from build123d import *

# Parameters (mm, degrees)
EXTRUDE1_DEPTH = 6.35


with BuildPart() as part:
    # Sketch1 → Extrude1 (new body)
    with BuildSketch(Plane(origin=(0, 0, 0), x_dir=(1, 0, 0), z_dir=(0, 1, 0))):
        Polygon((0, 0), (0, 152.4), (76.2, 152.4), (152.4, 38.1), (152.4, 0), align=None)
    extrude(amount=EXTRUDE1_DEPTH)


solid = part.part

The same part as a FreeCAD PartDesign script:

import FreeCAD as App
import Part
import Sketcher

V = App.Vector
Q = App.Units.Quantity

doc = App.newDocument("Part")
params = doc.addObject("Spreadsheet::Sheet", "Params")
for row, (alias, value) in enumerate([
    ("sketch1_width", "6 in"),
    ("sketch1_width2", "3 in"),
    ("sketch1_height", "1.5 in"),
    ("pad1_length", "0.25 in"),
], start=1):
    params.set(f"A{row}", alias)
    params.set(f"B{row}", "=" + value)
    params.setAlias(f"B{row}", alias)

body = doc.addObject("PartDesign::Body", "Body")

# Sketch on XZ plane
sketch1 = body.newObject("Sketcher::SketchObject", "Sketch")
sketch1.AttachmentSupport = (doc.getObject("XZ_Plane"), [""])
sketch1.MapMode = "FlatFace"
sketch1.addGeometry([
    Part.LineSegment(V(0, -152, 0), V(0, 0, 0)),  # 0
    Part.LineSegment(V(0, 0, 0), V(152, 0, 0)),  # 1
    Part.LineSegment(V(152, 0, 0), V(152, -38, 0)),  # 2
    Part.LineSegment(V(152, -38, 0), V(76, -152, 0)),  # 3
    Part.LineSegment(V(76, -152, 0), V(0, -152, 0)),  # 4
], False)
sketch1.addConstraint([
    Sketcher.Constraint("Coincident", 0, 2, 1, 1),
    Sketcher.Constraint("Coincident", 1, 2, 2, 1),
    Sketcher.Constraint("Coincident", 2, 2, 3, 1),
    Sketcher.Constraint("Coincident", 3, 2, 4, 1),
    Sketcher.Constraint("Coincident", 4, 2, 0, 1),
    Sketcher.Constraint("Vertical", 0),
    Sketcher.Constraint("Horizontal", 1),
    Sketcher.Constraint("Vertical", 2),
    Sketcher.Constraint("Horizontal", 4),
    Sketcher.Constraint("Coincident", 0, 2, -1, 1),
    Sketcher.Constraint("Equal", 1, 0),
    Sketcher.Constraint("DistanceX", 1, 1, 1, 2, Q("6 in")),
    Sketcher.Constraint("DistanceX", 4, 2, 4, 1, Q("3 in")),
    Sketcher.Constraint("DistanceY", 2, 2, 2, 1, Q("1.5 in")),
])
sketch1.setExpression("Constraints[11]", "Params.sketch1_width")
sketch1.setExpression("Constraints[12]", "Params.sketch1_width2")
sketch1.setExpression("Constraints[13]", "Params.sketch1_height")
pad1 = body.newObject("PartDesign::Pad", "Pad")
pad1.Profile = sketch1
pad1.setExpression("Length", "Params.pad1_length")
pad1.Reversed = True

doc.recompute()
